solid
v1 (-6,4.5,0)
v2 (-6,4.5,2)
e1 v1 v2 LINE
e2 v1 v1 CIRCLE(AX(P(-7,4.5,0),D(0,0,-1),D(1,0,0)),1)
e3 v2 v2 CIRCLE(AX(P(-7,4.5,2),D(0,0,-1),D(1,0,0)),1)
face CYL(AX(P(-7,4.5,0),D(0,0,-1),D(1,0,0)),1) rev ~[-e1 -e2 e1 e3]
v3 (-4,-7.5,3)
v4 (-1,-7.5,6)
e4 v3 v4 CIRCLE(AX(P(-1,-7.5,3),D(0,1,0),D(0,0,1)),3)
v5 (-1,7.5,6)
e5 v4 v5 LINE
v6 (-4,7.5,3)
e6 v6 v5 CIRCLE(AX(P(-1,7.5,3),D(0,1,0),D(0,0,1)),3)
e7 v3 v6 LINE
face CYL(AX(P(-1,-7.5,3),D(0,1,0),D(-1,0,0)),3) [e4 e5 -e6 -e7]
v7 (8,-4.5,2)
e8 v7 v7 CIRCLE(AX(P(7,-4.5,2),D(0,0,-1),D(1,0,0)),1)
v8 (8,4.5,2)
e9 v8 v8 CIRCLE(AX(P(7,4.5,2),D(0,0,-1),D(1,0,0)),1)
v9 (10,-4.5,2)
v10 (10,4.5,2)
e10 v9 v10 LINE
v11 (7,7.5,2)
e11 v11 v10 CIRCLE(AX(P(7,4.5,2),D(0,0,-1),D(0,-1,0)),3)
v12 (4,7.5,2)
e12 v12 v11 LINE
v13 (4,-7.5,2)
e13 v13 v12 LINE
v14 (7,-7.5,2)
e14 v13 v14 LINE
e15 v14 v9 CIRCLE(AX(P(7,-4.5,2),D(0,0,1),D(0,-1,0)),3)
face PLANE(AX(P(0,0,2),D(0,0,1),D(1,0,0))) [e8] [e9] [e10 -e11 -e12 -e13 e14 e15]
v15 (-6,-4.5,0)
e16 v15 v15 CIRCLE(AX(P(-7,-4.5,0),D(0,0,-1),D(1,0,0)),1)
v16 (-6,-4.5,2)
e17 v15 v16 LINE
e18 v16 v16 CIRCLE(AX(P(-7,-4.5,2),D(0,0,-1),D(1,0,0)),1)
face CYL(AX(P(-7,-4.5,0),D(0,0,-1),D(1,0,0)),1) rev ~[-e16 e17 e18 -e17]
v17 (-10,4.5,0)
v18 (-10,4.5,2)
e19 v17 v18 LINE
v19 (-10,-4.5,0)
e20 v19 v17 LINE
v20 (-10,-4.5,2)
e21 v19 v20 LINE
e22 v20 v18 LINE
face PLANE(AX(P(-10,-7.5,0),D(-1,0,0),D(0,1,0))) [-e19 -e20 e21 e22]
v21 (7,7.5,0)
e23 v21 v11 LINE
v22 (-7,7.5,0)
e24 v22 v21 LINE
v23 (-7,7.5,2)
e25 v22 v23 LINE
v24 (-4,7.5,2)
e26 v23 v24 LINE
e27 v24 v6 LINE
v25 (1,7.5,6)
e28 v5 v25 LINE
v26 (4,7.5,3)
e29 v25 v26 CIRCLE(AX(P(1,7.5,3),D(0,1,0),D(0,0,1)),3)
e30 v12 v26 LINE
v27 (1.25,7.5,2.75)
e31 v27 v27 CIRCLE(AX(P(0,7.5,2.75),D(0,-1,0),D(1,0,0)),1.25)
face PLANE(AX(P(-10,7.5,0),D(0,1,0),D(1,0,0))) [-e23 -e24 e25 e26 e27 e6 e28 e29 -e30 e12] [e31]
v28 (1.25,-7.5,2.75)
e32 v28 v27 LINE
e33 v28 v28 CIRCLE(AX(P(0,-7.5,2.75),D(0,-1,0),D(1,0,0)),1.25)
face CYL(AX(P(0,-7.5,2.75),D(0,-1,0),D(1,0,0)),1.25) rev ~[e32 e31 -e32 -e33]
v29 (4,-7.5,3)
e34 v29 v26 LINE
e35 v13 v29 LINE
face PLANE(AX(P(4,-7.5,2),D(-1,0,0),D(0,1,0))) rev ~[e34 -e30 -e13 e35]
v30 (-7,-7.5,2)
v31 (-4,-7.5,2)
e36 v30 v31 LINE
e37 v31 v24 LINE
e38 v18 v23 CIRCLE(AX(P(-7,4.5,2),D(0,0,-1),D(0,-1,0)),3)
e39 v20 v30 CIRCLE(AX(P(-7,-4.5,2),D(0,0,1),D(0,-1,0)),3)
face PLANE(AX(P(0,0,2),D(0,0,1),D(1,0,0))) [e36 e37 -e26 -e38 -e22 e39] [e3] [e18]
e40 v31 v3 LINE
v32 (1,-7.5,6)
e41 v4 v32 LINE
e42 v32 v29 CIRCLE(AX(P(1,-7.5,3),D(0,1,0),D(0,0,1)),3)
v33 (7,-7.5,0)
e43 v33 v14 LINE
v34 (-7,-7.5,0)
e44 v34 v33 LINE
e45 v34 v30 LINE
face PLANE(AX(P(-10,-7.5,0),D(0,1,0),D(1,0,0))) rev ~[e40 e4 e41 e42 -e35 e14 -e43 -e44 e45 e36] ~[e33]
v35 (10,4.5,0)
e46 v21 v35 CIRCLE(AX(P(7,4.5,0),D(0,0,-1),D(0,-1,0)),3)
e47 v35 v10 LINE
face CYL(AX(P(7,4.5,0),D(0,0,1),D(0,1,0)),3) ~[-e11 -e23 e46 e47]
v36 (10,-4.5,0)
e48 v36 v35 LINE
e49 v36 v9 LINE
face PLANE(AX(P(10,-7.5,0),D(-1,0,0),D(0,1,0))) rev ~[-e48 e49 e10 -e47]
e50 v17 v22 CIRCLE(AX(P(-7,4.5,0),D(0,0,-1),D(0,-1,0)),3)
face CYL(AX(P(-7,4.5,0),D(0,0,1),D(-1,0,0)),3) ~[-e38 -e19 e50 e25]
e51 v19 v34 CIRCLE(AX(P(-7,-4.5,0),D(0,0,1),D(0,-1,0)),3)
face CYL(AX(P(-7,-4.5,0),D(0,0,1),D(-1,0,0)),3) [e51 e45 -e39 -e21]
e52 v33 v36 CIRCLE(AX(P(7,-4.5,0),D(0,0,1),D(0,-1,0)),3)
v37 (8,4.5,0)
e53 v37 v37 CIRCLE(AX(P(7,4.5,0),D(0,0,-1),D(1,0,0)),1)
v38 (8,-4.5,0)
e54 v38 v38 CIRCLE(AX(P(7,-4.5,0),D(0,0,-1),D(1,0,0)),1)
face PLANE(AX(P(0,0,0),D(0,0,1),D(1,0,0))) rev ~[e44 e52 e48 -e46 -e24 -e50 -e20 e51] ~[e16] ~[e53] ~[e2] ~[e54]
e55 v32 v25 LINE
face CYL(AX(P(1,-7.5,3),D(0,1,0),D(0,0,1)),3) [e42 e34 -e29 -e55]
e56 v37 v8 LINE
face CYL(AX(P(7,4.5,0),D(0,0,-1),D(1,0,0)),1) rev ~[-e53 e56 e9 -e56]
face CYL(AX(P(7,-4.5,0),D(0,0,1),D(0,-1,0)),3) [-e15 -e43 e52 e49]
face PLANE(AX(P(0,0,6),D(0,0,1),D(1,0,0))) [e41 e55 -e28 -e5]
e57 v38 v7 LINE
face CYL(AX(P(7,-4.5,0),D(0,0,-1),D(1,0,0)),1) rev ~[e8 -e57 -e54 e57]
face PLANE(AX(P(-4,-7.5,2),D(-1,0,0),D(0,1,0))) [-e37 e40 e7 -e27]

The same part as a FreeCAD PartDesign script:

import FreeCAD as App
import Part
import Sketcher
from FreeCAD import Vector


def edges_at(feature, points):
    """Names of the edges that pass closest to the given points."""
    edges = feature.Shape.Edges
    near = lambda p: min(range(len(edges)), key=lambda i: edges[i].distToShape(Part.Vertex(*p))[0])
    return sorted({f"Edge{near(p) + 1}" for p in points})

doc = App.newDocument("Part")
body = doc.addObject("PartDesign::Body", "Body")

sketch1 = body.newObject("Sketcher::SketchObject", "Sketch")
sketch1.AttachmentSupport = (doc.getObject("XY_Plane"), [""])
sketch1.MapMode = "FlatFace"
sketch1.addGeometry(Part.LineSegment(Vector(-10, 8, 0), Vector(-10, -8, 0)), False)
sketch1.addGeometry(Part.LineSegment(Vector(-10, -8, 0), Vector(10, -8, 0)), False)
sketch1.addGeometry(Part.LineSegment(Vector(10, -8, 0), Vector(10, 8, 0)), False)
sketch1.addGeometry(Part.LineSegment(Vector(10, 8, 0), Vector(-10, 8, 0)), False)
sketch1.addConstraint(Sketcher.Constraint("Coincident", 0, 2, 1, 1))
sketch1.addConstraint(Sketcher.Constraint("Coincident", 1, 2, 2, 1))
sketch1.addConstraint(Sketcher.Constraint("Coincident", 2, 2, 3, 1))
sketch1.addConstraint(Sketcher.Constraint("Coincident", 3, 2, 0, 1))
sketch1.addConstraint(Sketcher.Constraint("Vertical", 0))
sketch1.addConstraint(Sketcher.Constraint("Horizontal", 1))
sketch1.addConstraint(Sketcher.Constraint("Vertical", 2))
sketch1.addConstraint(Sketcher.Constraint("Horizontal", 3))
sketch1.addConstraint(Sketcher.Constraint("Symmetric", 0, 2, 2, 2, -1, 1))
sketch1.addConstraint(Sketcher.Constraint("DistanceX", 1, 1, 1, 2, 20.0))
sketch1.addConstraint(Sketcher.Constraint("DistanceY", 0, 2, 0, 1, 15.0))
pad1 = body.newObject("PartDesign::Pad", "Pad")
pad1.Profile = sketch1
pad1.Length = 2

sketch2 = body.newObject("Sketcher::SketchObject", "Sketch001")
sketch2.AttachmentSupport = (doc.getObject("XY_Plane"), [""])
sketch2.MapMode = "FlatFace"
sketch2.AttachmentOffset = App.Placement(Vector(0, 0, 2), App.Rotation())
sketch2.addGeometry(Part.LineSegment(Vector(-4, 8, 0), Vector(-4, -8, 0)), False)
sketch2.addGeometry(Part.LineSegment(Vector(-4, -8, 0), Vector(4, -8, 0)), False)
sketch2.addGeometry(Part.LineSegment(Vector(4, -8, 0), Vector(4, 8, 0)), False)
sketch2.addGeometry(Part.LineSegment(Vector(4, 8, 0), Vector(-4, 8, 0)), False)
sketch2.addConstraint(Sketcher.Constraint("Coincident", 0, 2, 1, 1))
sketch2.addConstraint(Sketcher.Constraint("Coincident", 1, 2, 2, 1))
sketch2.addConstraint(Sketcher.Constraint("Coincident", 2, 2, 3, 1))
sketch2.addConstraint(Sketcher.Constraint("Coincident", 3, 2, 0, 1))
sketch2.addConstraint(Sketcher.Constraint("Vertical", 0))
sketch2.addConstraint(Sketcher.Constraint("Horizontal", 1))
sketch2.addConstraint(Sketcher.Constraint("Vertical", 2))
sketch2.addConstraint(Sketcher.Constraint("Horizontal", 3))
sketch2.addConstraint(Sketcher.Constraint("Symmetric", 0, 2, 2, 2, -1, 1))
sketch2.addConstraint(Sketcher.Constraint("DistanceX", 1, 1, 1, 2, 8.0))
sketch2.addConstraint(Sketcher.Constraint("DistanceY", 0, 2, 0, 1, 15.0))
pad2 = body.newObject("PartDesign::Pad", "Pad001")
pad2.Profile = sketch2
pad2.Length = 4

sketch3 = body.newObject("Sketcher::SketchObject", "Sketch002")
sketch3.AttachmentSupport = (doc.getObject("XZ_Plane"), [""])
sketch3.MapMode = "FlatFace"
sketch3.AttachmentOffset = App.Placement(Vector(0, 0, 7.5), App.Rotation())
sketch3.addGeometry(Part.Circle(Vector(0, 2.8, 0), Vector(0, 0, 1), 1.2), False)
sketch3.addConstraint(Sketcher.Constraint("PointOnObject", 0, 3, -2))
sketch3.addConstraint(Sketcher.Constraint("Diameter", 0, 2.5))
sketch3.addConstraint(Sketcher.Constraint("DistanceY", -1, 1, 0, 3, 2.75))
pocket1 = body.newObject("PartDesign::Pocket", "Pocket")
pocket1.Profile = sketch3
pocket1.Type = "ThroughAll"

sketch4 = body.newObject("Sketcher::SketchObject", "Sketch003")
sketch4.AttachmentSupport = (doc.getObject("XY_Plane"), [""])
sketch4.MapMode = "FlatFace"
sketch4.addGeometry(Part.Circle(Vector(-7, -4.5, 0), Vector(0, 0, 1), 1), False)
sketch4.addGeometry(Part.Circle(Vector(7, -4.5, 0), Vector(0, 0, 1), 1), False)
sketch4.addGeometry(Part.Circle(Vector(7, 4.5, 0), Vector(0, 0, 1), 1), False)
sketch4.addGeometry(Part.Circle(Vector(-7, 4.5, 0), Vector(0, 0, 1), 1), False)
sketch4.addConstraint(Sketcher.Constraint("Equal", 0, 1))
sketch4.addConstraint(Sketcher.Constraint("Equal", 1, 2))
sketch4.addConstraint(Sketcher.Constraint("Equal", 2, 3))
sketch4.addConstraint(Sketcher.Constraint("Symmetric", 0, 3, 2, 3, -1, 1))
sketch4.addConstraint(Sketcher.Constraint("Symmetric", 1, 3, 3, 3, -1, 1))
sketch4.addConstraint(Sketcher.Constraint("Symmetric", 0, 3, 1, 3, -2))
sketch4.addConstraint(Sketcher.Constraint("Diameter", 0, 2.0))
sketch4.addConstraint(Sketcher.Constraint("DistanceX", 0, 3, -1, 1, 7.0))
sketch4.addConstraint(Sketcher.Constraint("DistanceY", 1, 3, 2, 3, 9.0))
pocket2 = body.newObject("PartDesign::Pocket", "Pocket001")
pocket2.Profile = sketch4
pocket2.Length = 25
pocket2.Reversed = True
doc.recompute()

fillet = body.newObject("PartDesign::Fillet", "Fillet")
fillet.Base = (pocket2, edges_at(pocket2, [
    (4, 0, 6),
    (-4, 0, 6),
    (10, -7.5, 1),
    (10, 7.5, 1),
    (-10, -7.5, 1),
    (-10, 7.5, 1),
]))
fillet.Radius = 3

doc.recompute()
